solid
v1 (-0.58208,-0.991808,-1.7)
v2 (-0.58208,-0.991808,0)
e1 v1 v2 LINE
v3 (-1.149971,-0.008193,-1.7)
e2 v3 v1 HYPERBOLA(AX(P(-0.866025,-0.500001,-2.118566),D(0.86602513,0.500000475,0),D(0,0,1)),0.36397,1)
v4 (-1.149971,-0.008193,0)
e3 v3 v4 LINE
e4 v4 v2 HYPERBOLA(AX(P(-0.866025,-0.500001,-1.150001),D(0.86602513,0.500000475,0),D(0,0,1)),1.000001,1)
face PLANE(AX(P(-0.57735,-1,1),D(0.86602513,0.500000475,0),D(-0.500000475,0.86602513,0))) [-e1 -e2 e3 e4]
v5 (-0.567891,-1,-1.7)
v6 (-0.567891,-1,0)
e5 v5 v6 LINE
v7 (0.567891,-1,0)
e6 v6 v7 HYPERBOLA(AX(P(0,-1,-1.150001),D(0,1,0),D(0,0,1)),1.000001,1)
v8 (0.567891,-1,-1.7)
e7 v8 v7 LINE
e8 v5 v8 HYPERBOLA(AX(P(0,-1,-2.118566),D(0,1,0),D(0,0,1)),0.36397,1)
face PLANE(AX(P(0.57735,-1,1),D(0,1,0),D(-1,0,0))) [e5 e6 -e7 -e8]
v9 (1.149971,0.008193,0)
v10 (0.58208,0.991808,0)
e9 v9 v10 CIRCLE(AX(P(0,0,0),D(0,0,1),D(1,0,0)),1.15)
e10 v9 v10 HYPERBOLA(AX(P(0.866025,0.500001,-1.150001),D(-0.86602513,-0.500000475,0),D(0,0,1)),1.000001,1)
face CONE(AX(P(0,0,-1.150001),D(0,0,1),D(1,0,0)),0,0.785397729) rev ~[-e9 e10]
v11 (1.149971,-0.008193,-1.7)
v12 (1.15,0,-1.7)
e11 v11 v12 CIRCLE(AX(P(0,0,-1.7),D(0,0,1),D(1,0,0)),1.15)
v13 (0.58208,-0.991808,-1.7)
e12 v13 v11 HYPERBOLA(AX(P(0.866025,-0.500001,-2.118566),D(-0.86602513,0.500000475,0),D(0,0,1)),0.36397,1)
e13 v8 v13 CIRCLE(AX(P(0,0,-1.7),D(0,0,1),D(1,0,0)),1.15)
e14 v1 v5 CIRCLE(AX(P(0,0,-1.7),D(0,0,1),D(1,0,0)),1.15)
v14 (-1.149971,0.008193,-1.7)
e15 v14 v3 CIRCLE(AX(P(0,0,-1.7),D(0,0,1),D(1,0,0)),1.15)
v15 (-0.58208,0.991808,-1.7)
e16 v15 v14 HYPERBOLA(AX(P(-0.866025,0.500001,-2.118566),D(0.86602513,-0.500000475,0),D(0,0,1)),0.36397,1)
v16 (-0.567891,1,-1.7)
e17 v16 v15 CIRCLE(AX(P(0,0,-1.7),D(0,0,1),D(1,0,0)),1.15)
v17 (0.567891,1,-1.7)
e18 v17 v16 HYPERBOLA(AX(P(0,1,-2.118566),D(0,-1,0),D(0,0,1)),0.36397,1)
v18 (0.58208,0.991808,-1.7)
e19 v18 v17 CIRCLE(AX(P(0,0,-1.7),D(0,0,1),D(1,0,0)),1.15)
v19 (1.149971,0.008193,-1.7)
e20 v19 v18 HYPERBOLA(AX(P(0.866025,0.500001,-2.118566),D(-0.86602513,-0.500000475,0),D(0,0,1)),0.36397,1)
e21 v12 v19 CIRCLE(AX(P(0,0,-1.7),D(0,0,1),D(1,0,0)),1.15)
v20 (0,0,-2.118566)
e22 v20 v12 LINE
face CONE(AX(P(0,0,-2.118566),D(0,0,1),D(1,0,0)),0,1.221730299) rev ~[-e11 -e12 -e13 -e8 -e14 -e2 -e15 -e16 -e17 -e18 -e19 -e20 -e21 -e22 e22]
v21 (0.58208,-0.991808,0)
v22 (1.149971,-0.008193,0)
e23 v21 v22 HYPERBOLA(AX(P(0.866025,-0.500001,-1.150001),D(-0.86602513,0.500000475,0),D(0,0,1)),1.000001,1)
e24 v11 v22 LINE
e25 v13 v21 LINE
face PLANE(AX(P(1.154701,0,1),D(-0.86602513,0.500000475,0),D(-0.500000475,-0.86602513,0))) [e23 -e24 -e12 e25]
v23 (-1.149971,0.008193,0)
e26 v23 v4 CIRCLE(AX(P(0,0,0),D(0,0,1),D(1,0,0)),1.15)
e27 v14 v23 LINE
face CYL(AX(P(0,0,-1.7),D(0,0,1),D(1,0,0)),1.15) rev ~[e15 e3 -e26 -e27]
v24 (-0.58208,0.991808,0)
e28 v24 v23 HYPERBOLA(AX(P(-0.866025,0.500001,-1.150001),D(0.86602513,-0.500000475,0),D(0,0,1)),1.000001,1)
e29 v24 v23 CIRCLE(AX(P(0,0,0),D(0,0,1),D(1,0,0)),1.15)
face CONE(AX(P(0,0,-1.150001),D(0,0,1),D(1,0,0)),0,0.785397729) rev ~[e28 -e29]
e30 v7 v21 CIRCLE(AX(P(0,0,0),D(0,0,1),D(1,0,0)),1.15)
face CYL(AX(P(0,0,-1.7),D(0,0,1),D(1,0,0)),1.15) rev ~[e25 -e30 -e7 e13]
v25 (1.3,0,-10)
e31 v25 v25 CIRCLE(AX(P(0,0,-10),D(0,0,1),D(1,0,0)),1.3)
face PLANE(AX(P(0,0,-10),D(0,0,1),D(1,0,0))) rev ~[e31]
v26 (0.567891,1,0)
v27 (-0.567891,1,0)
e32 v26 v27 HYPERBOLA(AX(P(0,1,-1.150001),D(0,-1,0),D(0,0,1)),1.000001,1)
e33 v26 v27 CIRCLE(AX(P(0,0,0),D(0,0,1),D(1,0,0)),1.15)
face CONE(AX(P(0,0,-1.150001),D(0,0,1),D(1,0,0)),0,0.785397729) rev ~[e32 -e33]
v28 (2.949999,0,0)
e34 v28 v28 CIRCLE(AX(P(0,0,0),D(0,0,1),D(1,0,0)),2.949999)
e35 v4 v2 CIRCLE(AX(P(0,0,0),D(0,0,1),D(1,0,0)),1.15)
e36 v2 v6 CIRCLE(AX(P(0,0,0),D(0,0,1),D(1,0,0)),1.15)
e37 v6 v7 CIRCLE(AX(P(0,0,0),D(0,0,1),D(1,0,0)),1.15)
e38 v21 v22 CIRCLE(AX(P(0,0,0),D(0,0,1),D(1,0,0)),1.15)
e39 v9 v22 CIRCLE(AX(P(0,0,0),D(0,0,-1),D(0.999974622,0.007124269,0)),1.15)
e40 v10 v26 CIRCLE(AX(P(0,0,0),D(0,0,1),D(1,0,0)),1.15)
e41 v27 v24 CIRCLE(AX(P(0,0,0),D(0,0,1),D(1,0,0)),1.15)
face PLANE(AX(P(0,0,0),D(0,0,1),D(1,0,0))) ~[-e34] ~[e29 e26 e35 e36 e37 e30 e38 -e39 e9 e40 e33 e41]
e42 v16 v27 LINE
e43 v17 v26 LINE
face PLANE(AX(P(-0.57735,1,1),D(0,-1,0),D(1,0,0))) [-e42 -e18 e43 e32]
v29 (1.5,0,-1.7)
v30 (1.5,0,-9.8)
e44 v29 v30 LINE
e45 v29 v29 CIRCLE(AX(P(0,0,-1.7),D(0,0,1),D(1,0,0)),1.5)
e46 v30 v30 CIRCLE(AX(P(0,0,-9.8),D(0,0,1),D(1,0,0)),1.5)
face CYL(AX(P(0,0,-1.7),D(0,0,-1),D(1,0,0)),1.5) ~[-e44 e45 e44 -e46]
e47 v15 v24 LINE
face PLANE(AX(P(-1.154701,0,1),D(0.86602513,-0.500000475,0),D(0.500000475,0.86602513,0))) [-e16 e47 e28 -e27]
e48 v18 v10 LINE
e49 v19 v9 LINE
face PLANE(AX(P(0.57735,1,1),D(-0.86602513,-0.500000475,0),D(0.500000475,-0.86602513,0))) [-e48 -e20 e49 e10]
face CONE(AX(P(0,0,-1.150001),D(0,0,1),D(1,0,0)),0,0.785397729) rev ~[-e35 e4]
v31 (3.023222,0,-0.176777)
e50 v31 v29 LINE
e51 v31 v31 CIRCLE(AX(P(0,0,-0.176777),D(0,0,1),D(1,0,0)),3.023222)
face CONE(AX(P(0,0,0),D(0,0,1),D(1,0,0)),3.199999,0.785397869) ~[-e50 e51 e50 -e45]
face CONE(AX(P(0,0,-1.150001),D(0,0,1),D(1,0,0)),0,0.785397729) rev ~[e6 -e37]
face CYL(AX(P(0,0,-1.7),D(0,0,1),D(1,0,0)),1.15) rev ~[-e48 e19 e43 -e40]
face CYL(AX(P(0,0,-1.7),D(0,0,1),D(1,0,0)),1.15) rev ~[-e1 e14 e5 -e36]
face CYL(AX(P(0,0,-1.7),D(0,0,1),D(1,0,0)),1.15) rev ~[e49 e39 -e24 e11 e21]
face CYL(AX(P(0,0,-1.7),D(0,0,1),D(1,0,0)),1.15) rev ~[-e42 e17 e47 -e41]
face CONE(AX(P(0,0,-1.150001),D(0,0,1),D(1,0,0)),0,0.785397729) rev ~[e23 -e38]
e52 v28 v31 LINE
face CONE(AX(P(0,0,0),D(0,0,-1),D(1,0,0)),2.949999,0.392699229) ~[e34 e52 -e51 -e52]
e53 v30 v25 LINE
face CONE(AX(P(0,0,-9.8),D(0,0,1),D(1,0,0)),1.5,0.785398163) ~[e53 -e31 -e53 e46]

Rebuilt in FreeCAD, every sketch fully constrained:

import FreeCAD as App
import Part
import Sketcher
from FreeCAD import Vector
Q = App.Units.Quantity


def edges_at(feature, points):
    """Names of the edges that pass closest to the given points."""
    edges = feature.Shape.Edges
    near = lambda p: min(range(len(edges)), key=lambda i: edges[i].distToShape(Part.Vertex(*p))[0])
    return sorted({f"Edge{near(p) + 1}" for p in points})


def add_polygon(sketch, points):
    """Adds a closed chain of lines whose ends are joined by coincident constraints."""
    first, n = sketch.GeometryCount, len(points)
    for a, b in zip(points, points[1:] + points[:1]):
        sketch.addGeometry(Part.LineSegment(App.Vector(*a, 0), App.Vector(*b, 0)), False)
    for i in range(n):
        sketch.addConstraint(Sketcher.Constraint("Coincident", first + i, 2, first + (i + 1) % n, 1))

doc = App.newDocument("Part")
body = doc.addObject("PartDesign::Body", "Body")

sketch1 = body.newObject("Sketcher::SketchObject", "Sketch")
sketch1.AttachmentSupport = (doc.getObject("XZ_Plane"), [""])
sketch1.MapMode = "FlatFace"
add_polygon(sketch1, [(0, -2.1), (1.1, -1.7), (1.1, 1), (0, 1)])
sketch1.addConstraint(Sketcher.Constraint("Vertical", 1))
sketch1.addConstraint(Sketcher.Constraint("Horizontal", 2))
sketch1.addConstraint(Sketcher.Constraint("Vertical", 3))
sketch1.addConstraint(Sketcher.Constraint("PointOnObject", 2, 2, -2))
sketch1.addConstraint(Sketcher.Constraint("Angle", 0, Q("20.00001 deg")))
sketch1.addConstraint(Sketcher.Constraint("DistanceY", 1, 1, 1, 2, Q("2.7 mm")))
sketch1.addConstraint(Sketcher.Constraint("DistanceY", -1, 1, 1, 2, Q("1 mm")))
sketch1.addConstraint(Sketcher.Constraint("DistanceX", 2, 2, 2, 1, Q("1.15 mm")))
revolution = body.newObject("PartDesign::Revolution", "Revolution")
revolution.Profile = sketch1
revolution.ReferenceAxis = (sketch1, ["V_Axis"])
revolution.Angle = 360

sketch2 = body.newObject("Sketcher::SketchObject", "Sketch001")
sketch2.AttachmentSupport = (doc.getObject("XY_Plane"), [""])
sketch2.MapMode = "FlatFace"
sketch2.AttachmentOffset = App.Placement(Vector(0, 0, 1), App.Rotation())
sketch2.addGeometry(Part.Circle(Vector(0, 0, 0), Vector(0, 0, 1), 2.1), False)
add_polygon(sketch2, [(1.2, 0), (0.6, -1), (-0.6, -1), (-1.2, 0), (-0.6, 1), (0.6, 1)])
sketch2.addConstraint(Sketcher.Constraint("Horizontal", 2))
sketch2.addConstraint(Sketcher.Constraint("Horizontal", 5))
sketch2.addConstraint(Sketcher.Constraint("Coincident", 0, 3, -1, 1))
sketch2.addConstraint(Sketcher.Constraint("Symmetric", 1, 2, 4, 2, -1, 1))
sketch2.addConstraint(Sketcher.Constraint("Symmetric", 3, 2, 6, 2, -1, 1))
sketch2.addConstraint(Sketcher.Constraint("PointOnObject", 3, 2, -1))
sketch2.addConstraint(Sketcher.Constraint("Parallel", 3, 6))
sketch2.addConstraint(Sketcher.Constraint("Vertical", 2, 2, 4, 2))
sketch2.addConstraint(Sketcher.Constraint("Diameter", 0, Q("4.3 mm")))
sketch2.addConstraint(Sketcher.Constraint("DistanceY", 1, 2, -1, 1, Q("1 mm")))
sketch2.addConstraint(Sketcher.Constraint("DistanceX", 2, 2, 2, 1, Q("1.1547 mm")))
sketch2.addConstraint(Sketcher.Constraint("Distance", 1, Q("1.154701 mm")))
pocket1 = body.newObject("PartDesign::Pocket", "Pocket")
pocket1.Profile = sketch2
pocket1.Type = "ThroughAll"
body2 = doc.addObject("PartDesign::Body", "Body001")

sketch3 = body2.newObject("Sketcher::SketchObject", "Sketch002")
sketch3.AttachmentSupport = (doc.getObject("XZ_Plane001"), [""])
sketch3.MapMode = "FlatFace"
add_polygon(sketch3, [(3.2, 0), (1.1, 0), (0, -1.2), (0, -10), (1.5, -10), (1.5, -1.7)])
sketch3.addConstraint(Sketcher.Constraint("Horizontal", 0))
sketch3.addConstraint(Sketcher.Constraint("Vertical", 2))
sketch3.addConstraint(Sketcher.Constraint("Horizontal", 3))
sketch3.addConstraint(Sketcher.Constraint("Vertical", 4))
sketch3.addConstraint(Sketcher.Constraint("PointOnObject", 0, 2, -1))
sketch3.addConstraint(Sketcher.Constraint("PointOnObject", 1, 2, -2))
sketch3.addConstraint(Sketcher.Constraint("Parallel", 1, 5))
sketch3.addConstraint(Sketcher.Constraint("Angle", 5, Q("45.000017 deg")))
sketch3.addConstraint(Sketcher.Constraint("DistanceX", 3, 1, 3, 2, Q("1.5 mm")))
sketch3.addConstraint(Sketcher.Constraint("DistanceY", 4, 1, 4, 2, Q("8.3 mm")))
sketch3.addConstraint(Sketcher.Constraint("DistanceY", 2, 2, -1, 1, Q("10 mm")))
sketch3.addConstraint(Sketcher.Constraint("DistanceX", 0, 2, 0, 1, Q("2.049999 mm")))
revolution2 = body2.newObject("PartDesign::Revolution", "Revolution001")
revolution2.Profile = sketch3
revolution2.ReferenceAxis = (sketch3, ["V_Axis"])
revolution2.Angle = 360
doc.recompute()

boolean = body2.newObject("PartDesign::Boolean", "Boolean")
boolean.Type = "Cut"
boolean.addObjects([body])
doc.recompute()

chamfer = body2.newObject("PartDesign::Chamfer", "Chamfer")
chamfer.Base = (boolean, edges_at(boolean, [(-3.2, 0, 0)]))
chamfer.Size = 0.25
doc.recompute()

chamfer2 = body2.newObject("PartDesign::Chamfer", "Chamfer001")
chamfer2.Base = (chamfer, edges_at(chamfer, [(-1.5, 0, -10)]))
chamfer2.Size = 0.2

doc.recompute()
